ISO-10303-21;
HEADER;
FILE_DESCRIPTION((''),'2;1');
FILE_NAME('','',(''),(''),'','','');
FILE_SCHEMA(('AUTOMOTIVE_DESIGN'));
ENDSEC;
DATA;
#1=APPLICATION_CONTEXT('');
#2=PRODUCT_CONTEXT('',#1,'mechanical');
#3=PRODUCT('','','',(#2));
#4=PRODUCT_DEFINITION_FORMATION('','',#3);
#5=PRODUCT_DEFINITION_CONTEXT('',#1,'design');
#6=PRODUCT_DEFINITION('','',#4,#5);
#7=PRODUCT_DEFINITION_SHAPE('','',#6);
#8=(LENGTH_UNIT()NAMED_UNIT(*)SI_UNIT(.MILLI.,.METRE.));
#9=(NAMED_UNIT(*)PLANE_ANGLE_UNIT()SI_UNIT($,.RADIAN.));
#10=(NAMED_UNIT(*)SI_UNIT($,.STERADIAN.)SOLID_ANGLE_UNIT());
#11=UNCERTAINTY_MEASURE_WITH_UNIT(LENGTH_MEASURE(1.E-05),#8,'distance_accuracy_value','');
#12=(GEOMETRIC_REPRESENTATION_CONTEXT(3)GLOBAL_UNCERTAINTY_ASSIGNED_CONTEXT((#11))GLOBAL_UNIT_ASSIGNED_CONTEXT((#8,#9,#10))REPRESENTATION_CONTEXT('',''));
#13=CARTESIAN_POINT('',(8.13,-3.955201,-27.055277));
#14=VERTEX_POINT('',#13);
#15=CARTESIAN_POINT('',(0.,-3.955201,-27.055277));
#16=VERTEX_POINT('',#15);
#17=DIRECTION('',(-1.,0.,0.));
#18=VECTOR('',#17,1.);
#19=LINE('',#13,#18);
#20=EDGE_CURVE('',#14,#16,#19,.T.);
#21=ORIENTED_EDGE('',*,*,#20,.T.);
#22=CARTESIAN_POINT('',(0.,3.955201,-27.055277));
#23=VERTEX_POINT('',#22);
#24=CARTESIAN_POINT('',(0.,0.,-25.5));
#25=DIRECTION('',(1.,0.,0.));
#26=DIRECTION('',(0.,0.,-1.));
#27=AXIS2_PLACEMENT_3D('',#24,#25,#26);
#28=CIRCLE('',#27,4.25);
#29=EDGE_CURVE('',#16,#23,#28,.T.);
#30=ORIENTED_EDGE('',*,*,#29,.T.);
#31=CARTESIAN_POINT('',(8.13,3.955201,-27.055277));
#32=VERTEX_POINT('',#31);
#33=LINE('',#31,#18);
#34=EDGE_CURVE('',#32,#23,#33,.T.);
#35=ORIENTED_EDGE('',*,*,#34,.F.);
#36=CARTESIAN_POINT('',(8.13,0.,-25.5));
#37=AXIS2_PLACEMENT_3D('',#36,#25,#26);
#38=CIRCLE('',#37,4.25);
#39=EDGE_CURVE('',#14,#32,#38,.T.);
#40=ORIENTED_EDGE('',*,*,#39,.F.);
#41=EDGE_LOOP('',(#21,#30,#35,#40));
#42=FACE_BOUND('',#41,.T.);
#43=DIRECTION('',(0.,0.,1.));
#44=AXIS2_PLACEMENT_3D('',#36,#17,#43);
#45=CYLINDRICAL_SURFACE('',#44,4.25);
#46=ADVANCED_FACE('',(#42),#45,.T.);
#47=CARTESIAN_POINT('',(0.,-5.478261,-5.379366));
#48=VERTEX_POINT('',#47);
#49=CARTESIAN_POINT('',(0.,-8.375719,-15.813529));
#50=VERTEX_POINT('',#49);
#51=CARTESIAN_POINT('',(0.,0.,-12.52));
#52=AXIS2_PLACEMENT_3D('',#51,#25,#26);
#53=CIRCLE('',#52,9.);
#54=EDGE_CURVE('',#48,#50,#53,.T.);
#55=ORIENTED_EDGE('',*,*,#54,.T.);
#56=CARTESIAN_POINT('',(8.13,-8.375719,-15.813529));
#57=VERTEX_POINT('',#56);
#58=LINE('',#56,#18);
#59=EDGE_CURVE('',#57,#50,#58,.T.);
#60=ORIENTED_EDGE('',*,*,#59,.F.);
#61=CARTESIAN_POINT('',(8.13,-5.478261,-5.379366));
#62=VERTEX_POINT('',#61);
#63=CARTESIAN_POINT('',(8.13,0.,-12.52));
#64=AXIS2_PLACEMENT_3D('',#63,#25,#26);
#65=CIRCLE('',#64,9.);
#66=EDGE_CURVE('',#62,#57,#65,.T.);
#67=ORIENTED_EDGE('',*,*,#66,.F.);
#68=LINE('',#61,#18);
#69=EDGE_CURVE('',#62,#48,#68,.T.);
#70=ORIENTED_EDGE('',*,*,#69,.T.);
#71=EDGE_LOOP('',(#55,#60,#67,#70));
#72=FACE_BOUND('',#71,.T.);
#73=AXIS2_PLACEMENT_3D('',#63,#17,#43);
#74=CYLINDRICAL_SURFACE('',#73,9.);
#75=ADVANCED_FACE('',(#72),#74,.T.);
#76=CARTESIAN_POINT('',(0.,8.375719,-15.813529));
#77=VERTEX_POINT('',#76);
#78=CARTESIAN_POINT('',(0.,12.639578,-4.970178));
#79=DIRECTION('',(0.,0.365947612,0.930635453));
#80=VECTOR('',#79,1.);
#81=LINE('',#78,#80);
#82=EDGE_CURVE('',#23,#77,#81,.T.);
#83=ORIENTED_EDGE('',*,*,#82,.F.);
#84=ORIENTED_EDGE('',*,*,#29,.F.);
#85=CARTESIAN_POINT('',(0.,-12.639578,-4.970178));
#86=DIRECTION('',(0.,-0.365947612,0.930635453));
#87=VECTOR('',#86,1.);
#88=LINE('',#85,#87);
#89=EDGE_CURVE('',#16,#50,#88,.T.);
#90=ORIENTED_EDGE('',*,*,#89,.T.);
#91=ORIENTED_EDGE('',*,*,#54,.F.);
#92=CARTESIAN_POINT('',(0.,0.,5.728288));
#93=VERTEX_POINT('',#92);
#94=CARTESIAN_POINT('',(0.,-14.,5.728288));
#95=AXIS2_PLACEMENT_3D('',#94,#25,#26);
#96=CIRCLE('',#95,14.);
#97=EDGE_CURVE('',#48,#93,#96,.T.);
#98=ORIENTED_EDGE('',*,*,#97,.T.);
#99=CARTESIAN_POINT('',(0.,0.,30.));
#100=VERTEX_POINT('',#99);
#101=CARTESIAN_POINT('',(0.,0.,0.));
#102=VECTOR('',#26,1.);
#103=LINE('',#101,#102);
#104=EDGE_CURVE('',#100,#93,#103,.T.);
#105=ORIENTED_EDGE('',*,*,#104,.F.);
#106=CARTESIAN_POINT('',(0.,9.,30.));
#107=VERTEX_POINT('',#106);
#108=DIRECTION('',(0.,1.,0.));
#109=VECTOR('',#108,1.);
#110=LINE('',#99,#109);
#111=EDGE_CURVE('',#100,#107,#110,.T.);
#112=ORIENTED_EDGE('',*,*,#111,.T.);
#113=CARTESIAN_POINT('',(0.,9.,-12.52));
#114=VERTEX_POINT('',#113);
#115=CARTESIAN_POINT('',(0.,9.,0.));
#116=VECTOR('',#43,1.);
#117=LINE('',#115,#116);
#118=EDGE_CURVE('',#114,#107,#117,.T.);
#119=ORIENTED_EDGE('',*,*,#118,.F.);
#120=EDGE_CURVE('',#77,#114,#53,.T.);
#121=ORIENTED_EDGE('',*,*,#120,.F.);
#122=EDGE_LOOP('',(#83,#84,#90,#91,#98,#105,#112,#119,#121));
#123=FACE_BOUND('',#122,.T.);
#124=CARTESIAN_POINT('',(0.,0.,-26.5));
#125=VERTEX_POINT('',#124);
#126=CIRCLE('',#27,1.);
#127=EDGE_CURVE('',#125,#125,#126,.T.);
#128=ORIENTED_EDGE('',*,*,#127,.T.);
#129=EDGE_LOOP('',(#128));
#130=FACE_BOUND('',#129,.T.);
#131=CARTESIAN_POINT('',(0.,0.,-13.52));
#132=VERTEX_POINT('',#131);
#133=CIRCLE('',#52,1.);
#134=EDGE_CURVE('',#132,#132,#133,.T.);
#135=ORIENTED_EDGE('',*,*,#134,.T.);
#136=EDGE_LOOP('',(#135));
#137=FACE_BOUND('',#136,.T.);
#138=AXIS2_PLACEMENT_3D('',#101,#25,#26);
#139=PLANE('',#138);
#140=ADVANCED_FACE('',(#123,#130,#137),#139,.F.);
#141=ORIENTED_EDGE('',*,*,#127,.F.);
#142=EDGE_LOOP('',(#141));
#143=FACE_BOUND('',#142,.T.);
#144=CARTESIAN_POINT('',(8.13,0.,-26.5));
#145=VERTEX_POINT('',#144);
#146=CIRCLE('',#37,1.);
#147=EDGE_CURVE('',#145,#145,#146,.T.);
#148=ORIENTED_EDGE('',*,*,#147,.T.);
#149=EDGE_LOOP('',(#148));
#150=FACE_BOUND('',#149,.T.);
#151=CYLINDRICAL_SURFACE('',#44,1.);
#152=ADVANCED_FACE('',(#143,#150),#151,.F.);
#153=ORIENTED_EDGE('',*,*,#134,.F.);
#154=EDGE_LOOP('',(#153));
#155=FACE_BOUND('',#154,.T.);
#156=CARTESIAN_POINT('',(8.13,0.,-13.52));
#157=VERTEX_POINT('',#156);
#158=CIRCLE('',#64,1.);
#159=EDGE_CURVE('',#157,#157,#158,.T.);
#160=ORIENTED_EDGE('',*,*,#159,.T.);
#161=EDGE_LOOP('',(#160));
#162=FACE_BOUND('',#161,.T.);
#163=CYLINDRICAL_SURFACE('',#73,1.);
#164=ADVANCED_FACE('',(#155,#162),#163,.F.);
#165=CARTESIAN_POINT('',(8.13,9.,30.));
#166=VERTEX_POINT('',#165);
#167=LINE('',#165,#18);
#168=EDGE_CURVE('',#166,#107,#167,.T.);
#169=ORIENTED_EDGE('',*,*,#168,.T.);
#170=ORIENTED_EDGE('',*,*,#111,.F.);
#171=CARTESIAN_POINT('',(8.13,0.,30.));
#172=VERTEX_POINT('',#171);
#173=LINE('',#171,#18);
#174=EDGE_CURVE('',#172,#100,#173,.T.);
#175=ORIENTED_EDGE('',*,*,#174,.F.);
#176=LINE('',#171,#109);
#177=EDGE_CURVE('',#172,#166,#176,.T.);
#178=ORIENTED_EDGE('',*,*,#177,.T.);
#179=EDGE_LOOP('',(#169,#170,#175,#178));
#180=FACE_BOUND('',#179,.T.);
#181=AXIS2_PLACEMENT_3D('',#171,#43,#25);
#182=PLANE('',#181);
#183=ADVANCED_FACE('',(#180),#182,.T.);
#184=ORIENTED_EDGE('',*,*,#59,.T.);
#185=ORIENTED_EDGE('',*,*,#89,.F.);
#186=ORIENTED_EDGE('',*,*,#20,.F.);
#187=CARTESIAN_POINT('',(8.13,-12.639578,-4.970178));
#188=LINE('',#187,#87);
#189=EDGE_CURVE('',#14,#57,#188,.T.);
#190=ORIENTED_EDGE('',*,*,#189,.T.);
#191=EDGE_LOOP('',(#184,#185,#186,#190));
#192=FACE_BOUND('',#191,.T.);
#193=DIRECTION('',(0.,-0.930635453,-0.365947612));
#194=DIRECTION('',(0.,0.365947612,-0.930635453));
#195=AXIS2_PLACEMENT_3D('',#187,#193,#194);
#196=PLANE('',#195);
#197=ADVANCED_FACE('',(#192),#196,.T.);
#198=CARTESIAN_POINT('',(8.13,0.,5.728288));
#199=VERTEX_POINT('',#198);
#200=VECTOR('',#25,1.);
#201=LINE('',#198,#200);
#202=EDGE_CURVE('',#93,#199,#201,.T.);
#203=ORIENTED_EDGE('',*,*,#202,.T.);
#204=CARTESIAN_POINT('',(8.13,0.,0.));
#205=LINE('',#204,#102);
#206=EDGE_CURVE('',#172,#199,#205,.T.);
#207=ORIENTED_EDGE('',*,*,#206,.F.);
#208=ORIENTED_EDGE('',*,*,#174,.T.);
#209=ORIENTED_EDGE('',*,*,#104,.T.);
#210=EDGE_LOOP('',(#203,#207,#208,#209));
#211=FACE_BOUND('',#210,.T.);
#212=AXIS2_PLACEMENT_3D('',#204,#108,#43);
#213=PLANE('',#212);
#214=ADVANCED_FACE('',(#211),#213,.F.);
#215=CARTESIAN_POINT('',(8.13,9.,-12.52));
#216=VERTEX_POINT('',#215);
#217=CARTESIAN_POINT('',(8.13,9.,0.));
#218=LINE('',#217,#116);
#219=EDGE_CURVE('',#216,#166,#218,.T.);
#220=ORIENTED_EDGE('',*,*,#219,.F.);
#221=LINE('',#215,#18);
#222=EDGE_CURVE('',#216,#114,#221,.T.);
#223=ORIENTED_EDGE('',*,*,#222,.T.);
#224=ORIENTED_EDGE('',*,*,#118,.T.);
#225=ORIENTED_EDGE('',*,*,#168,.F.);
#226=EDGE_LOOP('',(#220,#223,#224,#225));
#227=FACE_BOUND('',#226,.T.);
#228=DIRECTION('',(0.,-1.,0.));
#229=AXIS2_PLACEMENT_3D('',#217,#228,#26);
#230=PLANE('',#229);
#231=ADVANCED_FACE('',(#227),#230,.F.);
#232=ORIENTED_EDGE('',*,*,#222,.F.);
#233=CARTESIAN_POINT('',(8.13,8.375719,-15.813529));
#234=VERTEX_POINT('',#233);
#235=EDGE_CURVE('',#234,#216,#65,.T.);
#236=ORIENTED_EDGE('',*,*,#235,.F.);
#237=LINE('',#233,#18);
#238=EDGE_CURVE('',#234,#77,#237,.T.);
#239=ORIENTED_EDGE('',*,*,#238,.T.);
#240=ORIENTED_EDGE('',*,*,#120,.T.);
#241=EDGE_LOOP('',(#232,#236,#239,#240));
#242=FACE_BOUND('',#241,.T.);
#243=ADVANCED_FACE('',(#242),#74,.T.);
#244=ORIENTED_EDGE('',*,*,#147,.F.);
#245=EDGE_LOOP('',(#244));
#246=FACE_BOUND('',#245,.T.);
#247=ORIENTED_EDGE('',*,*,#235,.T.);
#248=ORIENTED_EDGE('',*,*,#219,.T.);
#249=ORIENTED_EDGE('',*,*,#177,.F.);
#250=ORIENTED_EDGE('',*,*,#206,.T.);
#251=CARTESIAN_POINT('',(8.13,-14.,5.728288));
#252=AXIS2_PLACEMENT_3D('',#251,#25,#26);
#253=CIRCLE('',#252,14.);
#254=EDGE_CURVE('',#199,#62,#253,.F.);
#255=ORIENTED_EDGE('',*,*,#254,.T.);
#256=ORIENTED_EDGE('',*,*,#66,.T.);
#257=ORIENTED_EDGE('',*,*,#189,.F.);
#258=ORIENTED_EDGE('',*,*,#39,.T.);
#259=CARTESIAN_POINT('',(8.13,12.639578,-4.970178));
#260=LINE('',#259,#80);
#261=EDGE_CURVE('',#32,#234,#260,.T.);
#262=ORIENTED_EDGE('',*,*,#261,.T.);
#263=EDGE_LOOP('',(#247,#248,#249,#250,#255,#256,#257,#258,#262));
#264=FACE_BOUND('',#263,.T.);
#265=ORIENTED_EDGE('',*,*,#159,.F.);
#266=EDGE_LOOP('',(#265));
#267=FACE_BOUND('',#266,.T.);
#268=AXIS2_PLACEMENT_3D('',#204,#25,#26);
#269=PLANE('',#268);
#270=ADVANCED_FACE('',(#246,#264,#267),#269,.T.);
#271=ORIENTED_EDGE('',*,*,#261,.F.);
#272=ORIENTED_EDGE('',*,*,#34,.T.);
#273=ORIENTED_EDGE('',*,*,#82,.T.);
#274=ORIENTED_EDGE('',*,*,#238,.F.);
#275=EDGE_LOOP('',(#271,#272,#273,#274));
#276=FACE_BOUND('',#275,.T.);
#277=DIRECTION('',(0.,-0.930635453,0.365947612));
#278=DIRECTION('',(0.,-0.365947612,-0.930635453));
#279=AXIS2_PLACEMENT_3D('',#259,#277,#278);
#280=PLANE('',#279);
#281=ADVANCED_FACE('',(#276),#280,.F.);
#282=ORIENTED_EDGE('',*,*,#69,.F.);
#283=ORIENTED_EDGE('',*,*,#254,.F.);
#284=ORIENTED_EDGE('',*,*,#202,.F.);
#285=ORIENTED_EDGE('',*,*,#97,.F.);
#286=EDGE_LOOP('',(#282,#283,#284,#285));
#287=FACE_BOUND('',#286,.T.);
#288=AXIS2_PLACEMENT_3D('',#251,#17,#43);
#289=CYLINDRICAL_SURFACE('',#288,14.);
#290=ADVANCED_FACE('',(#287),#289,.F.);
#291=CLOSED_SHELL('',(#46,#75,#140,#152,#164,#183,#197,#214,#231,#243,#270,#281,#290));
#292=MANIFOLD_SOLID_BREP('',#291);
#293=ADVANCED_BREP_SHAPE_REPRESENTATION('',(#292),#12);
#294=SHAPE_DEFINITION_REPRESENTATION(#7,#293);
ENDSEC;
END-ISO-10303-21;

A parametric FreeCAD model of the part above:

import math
import FreeCAD as App
import Part
import Sketcher
from FreeCAD import Vector
Q = App.Units.Quantity


def edges_at(feature, points):
    """Names of the edges that pass closest to the given points."""
    edges = feature.Shape.Edges
    near = lambda p: min(range(len(edges)), key=lambda i: edges[i].distToShape(Part.Vertex(*p))[0])
    return sorted({f"Edge{near(p) + 1}" for p in points})

doc = App.newDocument("Part")
body = doc.addObject("PartDesign::Body", "Body")

# Sketch on YZ plane
sketch1 = body.newObject("Sketcher::SketchObject", "Sketch")
sketch1.AttachmentSupport = (doc.getObject("YZ_Plane"), [""])
sketch1.MapMode = "FlatFace"
sketch1.addGeometry([
    Part.LineSegment(Vector(-4.7, -25.1, 0), Vector(-4, -27.1, 0)),  # 0
    Part.ArcOfCircle(Part.Circle(Vector(0, -25.5, 0), Vector(0, 0, 1), 4.2), math.radians(-159), math.radians(-90)),  # 1
    Part.ArcOfCircle(Part.Circle(Vector(0, -25.5, 0), Vector(0, 0, 1), 4.2), math.radians(-90), math.radians(-21)),  # 2
    Part.LineSegment(Vector(4, -27.1, 0), Vector(4.7, -25.1, 0)),  # 3
    Part.LineSegment(Vector(4.7, -25.1, 0), Vector(8.4, -15.8, 0)),  # 4
    Part.ArcOfCircle(Part.Circle(Vector(0, -12.5, 0), Vector(0, 0, 1), 9), math.radians(-21), math.radians(0)),  # 5
    Part.LineSegment(Vector(9, -12.5, 0), Vector(9, 30, 0)),  # 6
    Part.LineSegment(Vector(9, 30, 0), Vector(0, 30, 0)),  # 7
    Part.LineSegment(Vector(0, 30, 0), Vector(0, -3.5, 0)),  # 8
    Part.ArcOfCircle(Part.Circle(Vector(0, -12.5, 0), Vector(0, 0, 1), 9), math.radians(90), math.radians(122)),  # 9
    Part.ArcOfCircle(Part.Circle(Vector(0, -12.5, 0), Vector(0, 0, 1), 9), math.radians(122), math.radians(201)),  # 10
    Part.LineSegment(Vector(-8.4, -15.8, 0), Vector(-4.7, -25.1, 0)),  # 11
    Part.Circle(Vector(0, -12.5, 0), Vector(0, 0, 1), 1),  # 12
    Part.Circle(Vector(0, -25.5, 0), Vector(0, 0, 1), 1),  # 13
], False)
sketch1.addConstraint([
    Sketcher.Constraint("Tangent", 0, 2, 1, 1),
    Sketcher.Constraint("Tangent", 1, 2, 2, 1),
    Sketcher.Constraint("Tangent", 2, 2, 3, 1),
    Sketcher.Constraint("Coincident", 3, 2, 4, 1),
    Sketcher.Constraint("Tangent", 4, 2, 5, 1),
    Sketcher.Constraint("Tangent", 5, 2, 6, 1),
    Sketcher.Constraint("Coincident", 6, 2, 7, 1),
    Sketcher.Constraint("Coincident", 7, 2, 8, 1),
    Sketcher.Constraint("Coincident", 8, 2, 9, 1),
    Sketcher.Constraint("Tangent", 9, 2, 10, 1),
    Sketcher.Constraint("Tangent", 10, 2, 11, 1),
    Sketcher.Constraint("Coincident", 11, 2, 0, 1),
    Sketcher.Constraint("Vertical", 6),
    Sketcher.Constraint("Horizontal", 7),
    Sketcher.Constraint("Vertical", 8),
    Sketcher.Constraint("Coincident", 9, 3, 5, 3),
    Sketcher.Constraint("Coincident", 12, 3, 5, 3),
    Sketcher.Constraint("Coincident", 13, 3, 1, 3),
    Sketcher.Constraint("Equal", 1, 2),
    Sketcher.Constraint("Equal", 5, 9),
    Sketcher.Constraint("Equal", 9, 10),
    Sketcher.Constraint("Equal", 12, 13),
    Sketcher.Constraint("Symmetric", 0, 2, 2, 2, -2),
    Sketcher.Constraint("PointOnObject", 5, 3, -2),
    Sketcher.Constraint("PointOnObject", 1, 2, -2),
    Sketcher.Constraint("PointOnObject", 7, 2, -2),
    Sketcher.Constraint("Parallel", 3, 4),
    Sketcher.Constraint("Horizontal", 3, 2, 11, 2),
    Sketcher.Constraint("Vertical", 9, 2, 11, 2),
    Sketcher.Constraint("Diameter", 12, Q("2 mm")),
    Sketcher.Constraint("Radius", 5, Q("9 mm")),
    Sketcher.Constraint("Radius", 1, Q("4.25 mm")),
    Sketcher.Constraint("DistanceY", -1, 1, 6, 2, Q("30 mm")),
    Sketcher.Constraint("DistanceY", 6, 1, 6, 2, Q("42.52 mm")),
    Sketcher.Constraint("DistanceY", 1, 3, -1, 1, Q("25.5 mm")),
    Sketcher.Constraint("DistanceX", -1, 1, 3, 2, Q("4.725 mm")),
])
pad1 = body.newObject("PartDesign::Pad", "Pad")
pad1.Profile = sketch1
pad1.Length = 8.13
doc.recompute()

fillet = body.newObject("PartDesign::Fillet", "Fillet")
fillet.Base = (pad1, edges_at(pad1, [(4.065, 0, -3.52)]))
fillet.Radius = 14

doc.recompute()
